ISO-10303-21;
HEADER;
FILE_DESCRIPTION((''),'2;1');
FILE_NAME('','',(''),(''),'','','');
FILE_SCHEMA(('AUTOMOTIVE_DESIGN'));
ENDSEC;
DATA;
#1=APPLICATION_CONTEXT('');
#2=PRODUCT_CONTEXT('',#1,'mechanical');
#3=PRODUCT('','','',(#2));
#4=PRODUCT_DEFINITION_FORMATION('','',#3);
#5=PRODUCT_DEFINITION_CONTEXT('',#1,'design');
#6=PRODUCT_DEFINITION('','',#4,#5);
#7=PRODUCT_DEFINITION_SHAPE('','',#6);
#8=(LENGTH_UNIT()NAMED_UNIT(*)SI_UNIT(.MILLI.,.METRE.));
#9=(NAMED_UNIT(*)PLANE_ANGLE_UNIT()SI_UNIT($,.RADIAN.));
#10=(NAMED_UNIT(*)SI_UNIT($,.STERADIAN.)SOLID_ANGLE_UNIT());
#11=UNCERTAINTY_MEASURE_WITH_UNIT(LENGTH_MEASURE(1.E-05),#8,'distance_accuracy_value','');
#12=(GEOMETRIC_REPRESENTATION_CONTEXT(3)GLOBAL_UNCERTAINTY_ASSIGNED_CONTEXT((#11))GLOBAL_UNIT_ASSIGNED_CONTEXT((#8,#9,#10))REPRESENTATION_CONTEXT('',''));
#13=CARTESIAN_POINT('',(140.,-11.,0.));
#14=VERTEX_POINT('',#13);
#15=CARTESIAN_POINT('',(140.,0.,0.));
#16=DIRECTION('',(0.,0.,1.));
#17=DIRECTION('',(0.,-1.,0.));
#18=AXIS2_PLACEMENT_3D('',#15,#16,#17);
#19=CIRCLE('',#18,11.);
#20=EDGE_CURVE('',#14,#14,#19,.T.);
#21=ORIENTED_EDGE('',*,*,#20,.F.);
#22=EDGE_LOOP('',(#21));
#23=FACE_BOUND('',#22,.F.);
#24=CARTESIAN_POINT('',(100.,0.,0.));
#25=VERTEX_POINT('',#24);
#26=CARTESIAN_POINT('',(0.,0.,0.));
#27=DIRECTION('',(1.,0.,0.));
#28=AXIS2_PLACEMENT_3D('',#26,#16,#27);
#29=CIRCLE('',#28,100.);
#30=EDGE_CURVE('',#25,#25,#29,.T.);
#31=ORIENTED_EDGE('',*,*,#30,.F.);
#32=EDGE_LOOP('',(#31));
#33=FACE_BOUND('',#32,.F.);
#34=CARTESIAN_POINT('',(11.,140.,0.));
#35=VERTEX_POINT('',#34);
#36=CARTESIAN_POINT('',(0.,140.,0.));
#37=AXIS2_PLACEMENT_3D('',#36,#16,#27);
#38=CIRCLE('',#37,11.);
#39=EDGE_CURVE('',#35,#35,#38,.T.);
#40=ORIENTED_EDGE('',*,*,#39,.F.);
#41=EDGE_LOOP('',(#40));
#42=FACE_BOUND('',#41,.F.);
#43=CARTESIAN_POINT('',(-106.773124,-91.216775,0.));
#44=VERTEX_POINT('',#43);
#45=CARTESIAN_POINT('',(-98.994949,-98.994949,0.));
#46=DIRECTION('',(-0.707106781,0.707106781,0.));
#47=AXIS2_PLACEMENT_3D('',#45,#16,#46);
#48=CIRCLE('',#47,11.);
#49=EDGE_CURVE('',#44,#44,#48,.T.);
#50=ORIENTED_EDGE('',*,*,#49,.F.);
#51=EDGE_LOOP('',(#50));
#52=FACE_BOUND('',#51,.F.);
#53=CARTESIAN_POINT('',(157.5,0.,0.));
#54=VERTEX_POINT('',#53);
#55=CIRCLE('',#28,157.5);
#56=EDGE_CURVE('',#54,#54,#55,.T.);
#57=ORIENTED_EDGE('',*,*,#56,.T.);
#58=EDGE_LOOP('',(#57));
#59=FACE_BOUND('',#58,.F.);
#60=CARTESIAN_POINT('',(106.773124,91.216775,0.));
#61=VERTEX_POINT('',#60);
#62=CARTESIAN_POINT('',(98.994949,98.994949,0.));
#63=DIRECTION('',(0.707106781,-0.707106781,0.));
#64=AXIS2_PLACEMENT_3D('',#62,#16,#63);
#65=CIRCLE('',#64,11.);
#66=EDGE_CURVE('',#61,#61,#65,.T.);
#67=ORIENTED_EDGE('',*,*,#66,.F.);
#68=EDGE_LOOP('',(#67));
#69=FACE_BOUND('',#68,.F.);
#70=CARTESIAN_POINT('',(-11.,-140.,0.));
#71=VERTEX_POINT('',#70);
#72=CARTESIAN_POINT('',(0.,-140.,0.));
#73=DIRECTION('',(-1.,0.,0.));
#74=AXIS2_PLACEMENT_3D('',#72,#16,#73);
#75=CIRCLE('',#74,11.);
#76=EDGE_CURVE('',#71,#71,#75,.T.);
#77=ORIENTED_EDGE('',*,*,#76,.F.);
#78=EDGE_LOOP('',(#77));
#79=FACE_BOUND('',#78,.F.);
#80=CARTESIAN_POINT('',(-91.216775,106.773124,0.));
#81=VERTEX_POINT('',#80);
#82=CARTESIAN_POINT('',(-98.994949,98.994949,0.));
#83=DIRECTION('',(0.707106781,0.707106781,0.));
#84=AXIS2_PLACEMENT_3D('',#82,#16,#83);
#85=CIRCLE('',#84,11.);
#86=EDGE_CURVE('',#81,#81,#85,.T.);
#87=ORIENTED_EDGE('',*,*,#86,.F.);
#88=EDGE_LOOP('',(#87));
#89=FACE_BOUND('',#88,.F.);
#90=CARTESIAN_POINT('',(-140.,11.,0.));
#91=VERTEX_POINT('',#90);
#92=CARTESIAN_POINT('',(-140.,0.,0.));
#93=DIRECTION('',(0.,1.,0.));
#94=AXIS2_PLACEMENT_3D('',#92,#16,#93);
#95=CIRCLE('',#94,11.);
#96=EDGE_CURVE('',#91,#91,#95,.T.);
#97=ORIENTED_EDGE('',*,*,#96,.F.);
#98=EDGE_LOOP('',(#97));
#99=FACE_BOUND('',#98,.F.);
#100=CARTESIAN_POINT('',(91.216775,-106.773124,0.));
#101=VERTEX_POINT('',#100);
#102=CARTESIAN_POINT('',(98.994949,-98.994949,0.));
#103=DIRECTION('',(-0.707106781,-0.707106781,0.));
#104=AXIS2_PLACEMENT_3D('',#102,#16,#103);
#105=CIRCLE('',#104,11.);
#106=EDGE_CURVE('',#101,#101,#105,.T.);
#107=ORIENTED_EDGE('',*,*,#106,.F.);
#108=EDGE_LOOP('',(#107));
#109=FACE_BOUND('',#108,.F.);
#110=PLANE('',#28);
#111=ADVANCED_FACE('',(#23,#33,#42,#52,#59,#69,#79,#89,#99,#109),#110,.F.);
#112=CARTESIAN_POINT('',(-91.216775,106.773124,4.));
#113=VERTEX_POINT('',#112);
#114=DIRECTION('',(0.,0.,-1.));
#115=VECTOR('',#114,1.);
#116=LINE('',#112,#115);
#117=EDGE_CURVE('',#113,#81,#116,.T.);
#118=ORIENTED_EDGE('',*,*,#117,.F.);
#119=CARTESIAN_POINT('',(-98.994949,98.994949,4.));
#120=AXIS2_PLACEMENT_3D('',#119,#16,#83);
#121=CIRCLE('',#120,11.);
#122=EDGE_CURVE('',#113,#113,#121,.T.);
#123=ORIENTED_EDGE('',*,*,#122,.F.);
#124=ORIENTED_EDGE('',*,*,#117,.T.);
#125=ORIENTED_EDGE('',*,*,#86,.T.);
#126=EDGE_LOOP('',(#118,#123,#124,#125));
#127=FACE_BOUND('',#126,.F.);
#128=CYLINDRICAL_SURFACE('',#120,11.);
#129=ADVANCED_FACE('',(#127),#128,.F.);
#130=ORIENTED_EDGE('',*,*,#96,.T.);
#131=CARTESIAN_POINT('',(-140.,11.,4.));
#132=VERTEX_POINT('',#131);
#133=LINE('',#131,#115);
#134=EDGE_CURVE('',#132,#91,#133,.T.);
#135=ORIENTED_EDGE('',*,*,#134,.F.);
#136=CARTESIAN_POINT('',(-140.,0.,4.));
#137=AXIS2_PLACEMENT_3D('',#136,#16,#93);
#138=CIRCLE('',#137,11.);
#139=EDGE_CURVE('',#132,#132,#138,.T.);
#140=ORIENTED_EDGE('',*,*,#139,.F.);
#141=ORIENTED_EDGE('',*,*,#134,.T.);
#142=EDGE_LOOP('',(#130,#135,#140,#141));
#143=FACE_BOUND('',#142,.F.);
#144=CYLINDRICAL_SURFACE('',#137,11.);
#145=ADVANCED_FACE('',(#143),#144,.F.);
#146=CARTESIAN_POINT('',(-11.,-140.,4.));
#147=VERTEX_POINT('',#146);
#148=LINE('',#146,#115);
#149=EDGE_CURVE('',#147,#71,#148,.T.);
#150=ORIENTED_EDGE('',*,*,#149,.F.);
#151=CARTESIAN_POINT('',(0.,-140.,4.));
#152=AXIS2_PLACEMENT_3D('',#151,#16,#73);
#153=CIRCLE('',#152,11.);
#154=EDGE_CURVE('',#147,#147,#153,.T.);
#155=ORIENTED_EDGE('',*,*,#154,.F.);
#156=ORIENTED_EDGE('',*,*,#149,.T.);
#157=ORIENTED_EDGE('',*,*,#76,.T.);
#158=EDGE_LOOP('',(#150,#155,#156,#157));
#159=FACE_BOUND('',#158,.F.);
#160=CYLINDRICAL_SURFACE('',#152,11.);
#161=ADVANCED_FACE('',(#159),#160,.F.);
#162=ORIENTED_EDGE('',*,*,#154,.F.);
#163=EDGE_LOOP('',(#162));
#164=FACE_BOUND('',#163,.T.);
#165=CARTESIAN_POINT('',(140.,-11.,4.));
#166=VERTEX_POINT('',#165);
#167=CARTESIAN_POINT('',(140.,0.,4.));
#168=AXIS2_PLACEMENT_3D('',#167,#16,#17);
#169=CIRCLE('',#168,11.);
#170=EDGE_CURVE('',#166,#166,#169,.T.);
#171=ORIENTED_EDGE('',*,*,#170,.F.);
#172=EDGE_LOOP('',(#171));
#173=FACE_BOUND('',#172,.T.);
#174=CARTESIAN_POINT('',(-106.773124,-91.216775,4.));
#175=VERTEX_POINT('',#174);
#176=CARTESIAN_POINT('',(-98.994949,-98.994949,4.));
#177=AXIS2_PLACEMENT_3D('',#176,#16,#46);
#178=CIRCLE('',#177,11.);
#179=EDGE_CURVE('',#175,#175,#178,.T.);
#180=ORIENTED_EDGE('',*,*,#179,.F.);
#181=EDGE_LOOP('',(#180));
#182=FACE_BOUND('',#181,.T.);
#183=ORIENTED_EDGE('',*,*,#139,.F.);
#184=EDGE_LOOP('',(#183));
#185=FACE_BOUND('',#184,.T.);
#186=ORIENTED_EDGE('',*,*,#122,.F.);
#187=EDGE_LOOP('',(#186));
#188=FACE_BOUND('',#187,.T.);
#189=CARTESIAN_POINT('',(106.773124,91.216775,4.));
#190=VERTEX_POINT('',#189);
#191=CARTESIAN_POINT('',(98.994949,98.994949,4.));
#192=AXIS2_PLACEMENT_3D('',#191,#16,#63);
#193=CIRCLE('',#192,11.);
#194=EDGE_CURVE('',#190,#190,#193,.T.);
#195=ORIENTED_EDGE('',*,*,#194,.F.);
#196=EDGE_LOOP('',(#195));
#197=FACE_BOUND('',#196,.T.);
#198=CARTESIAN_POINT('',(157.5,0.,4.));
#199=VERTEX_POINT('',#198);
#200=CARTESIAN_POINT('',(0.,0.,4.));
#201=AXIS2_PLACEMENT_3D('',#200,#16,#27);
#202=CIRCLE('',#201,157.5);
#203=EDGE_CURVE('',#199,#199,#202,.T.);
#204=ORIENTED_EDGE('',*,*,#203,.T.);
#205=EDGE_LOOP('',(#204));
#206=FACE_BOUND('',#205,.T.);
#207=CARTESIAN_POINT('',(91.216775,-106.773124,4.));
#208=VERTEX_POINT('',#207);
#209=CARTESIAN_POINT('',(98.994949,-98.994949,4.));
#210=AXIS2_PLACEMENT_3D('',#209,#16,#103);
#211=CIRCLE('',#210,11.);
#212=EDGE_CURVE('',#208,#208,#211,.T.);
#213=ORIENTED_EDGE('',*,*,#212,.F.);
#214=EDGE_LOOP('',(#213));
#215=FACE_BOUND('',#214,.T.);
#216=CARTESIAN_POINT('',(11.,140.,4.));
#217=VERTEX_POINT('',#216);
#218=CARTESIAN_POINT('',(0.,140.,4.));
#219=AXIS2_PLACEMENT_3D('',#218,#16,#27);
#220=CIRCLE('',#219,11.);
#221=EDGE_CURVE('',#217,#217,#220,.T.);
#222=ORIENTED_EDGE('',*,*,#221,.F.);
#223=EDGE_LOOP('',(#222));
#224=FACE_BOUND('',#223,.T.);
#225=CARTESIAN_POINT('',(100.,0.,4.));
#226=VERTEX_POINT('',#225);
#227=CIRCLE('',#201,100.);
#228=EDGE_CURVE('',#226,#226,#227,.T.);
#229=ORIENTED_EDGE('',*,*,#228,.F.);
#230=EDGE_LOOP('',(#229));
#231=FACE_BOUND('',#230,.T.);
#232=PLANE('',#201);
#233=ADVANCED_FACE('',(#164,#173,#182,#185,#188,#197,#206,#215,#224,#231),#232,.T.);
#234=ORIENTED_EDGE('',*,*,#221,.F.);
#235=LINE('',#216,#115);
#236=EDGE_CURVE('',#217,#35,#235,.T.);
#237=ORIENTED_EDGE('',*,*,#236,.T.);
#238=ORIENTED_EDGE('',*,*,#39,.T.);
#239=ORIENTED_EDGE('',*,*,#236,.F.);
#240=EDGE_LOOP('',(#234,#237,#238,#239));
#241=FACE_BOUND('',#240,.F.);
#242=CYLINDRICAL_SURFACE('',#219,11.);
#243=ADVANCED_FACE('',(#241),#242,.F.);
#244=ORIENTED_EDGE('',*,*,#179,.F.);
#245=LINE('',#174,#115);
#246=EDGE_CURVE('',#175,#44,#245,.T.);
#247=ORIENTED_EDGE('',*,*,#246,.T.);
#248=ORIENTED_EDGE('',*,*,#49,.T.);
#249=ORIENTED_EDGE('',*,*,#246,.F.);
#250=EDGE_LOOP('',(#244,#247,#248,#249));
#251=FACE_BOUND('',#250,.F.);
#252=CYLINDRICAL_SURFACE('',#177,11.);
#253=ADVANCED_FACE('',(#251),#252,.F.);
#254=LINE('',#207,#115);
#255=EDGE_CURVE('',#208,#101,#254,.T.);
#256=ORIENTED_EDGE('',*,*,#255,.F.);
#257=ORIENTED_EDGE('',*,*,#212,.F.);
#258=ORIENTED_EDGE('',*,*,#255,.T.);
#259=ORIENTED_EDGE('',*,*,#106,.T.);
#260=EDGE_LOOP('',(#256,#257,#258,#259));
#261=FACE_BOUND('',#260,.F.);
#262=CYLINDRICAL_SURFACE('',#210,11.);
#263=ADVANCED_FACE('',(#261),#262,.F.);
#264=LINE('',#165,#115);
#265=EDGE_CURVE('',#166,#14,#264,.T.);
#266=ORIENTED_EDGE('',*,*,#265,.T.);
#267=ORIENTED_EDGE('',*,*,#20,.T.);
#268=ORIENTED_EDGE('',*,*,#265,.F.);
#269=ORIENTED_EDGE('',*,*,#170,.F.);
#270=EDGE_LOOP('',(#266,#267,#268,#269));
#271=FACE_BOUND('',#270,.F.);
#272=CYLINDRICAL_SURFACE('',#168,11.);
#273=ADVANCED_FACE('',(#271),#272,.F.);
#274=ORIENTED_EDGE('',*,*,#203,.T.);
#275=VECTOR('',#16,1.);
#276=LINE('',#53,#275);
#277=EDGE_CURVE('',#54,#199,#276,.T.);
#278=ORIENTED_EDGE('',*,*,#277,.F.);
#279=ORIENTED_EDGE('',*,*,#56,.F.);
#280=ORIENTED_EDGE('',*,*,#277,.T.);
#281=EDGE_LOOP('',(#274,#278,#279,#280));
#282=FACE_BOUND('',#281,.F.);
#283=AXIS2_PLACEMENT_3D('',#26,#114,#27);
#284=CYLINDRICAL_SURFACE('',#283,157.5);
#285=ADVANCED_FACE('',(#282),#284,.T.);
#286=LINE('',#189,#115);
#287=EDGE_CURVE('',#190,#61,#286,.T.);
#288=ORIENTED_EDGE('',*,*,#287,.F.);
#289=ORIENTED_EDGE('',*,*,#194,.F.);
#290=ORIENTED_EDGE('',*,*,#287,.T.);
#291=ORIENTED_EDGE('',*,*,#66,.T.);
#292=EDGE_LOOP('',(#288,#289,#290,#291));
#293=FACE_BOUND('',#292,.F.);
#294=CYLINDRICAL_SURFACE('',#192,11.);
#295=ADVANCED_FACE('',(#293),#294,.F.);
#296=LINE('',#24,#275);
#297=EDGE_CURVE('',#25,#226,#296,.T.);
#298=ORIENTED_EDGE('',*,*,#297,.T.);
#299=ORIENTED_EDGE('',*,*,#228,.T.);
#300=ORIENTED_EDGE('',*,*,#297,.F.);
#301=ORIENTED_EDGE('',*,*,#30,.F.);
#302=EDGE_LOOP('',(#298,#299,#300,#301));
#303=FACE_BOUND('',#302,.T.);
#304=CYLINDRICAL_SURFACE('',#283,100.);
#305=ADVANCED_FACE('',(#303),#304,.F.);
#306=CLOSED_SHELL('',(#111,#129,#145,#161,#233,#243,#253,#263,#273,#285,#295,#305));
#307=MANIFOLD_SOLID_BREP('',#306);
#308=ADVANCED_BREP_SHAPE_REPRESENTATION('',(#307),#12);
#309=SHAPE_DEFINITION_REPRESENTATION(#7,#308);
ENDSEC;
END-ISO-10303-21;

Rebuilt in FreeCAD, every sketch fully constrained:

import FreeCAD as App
import Part
import Sketcher

V = App.Vector

doc = App.newDocument("Part")
body = doc.addObject("PartDesign::Body", "Body")

sketch1 = body.newObject("Sketcher::SketchObject", "Sketch")
sketch1.AttachmentSupport = (doc.getObject("XY_Plane"), [""])
sketch1.MapMode = "FlatFace"
sketch1.addGeometry(Part.Circle(V(0, 0, 0), V(0, 0, 1), 158), False)
sketch1.addGeometry(Part.Circle(V(0, 0, 0), V(0, 0, 1), 100), False)
sketch1.addConstraint(Sketcher.Constraint("Coincident", 0, 3, -1, 1))
sketch1.addConstraint(Sketcher.Constraint("Coincident", 1, 3, -1, 1))
sketch1.addConstraint(Sketcher.Constraint("Diameter", 0, 315.0))
sketch1.addConstraint(Sketcher.Constraint("Diameter", 1, 200.0))
pad1 = body.newObject("PartDesign::Pad", "Pad")
pad1.Profile = sketch1
pad1.Length = 4

sketch2 = body.newObject("Sketcher::SketchObject", "Sketch001")
sketch2.AttachmentSupport = (doc.getObject("XY_Plane"), [""])
sketch2.MapMode = "FlatFace"
sketch2.AttachmentOffset = App.Placement(V(0, 0, 4), App.Rotation())
sketch2.addGeometry(Part.Circle(V(0, 140, 0), V(0, 0, 1), 11), False)
sketch2.addConstraint(Sketcher.Constraint("PointOnObject", 0, 3, -2))
sketch2.addConstraint(Sketcher.Constraint("Diameter", 0, 22.0))
sketch2.addConstraint(Sketcher.Constraint("DistanceY", -1, 1, 0, 3, 140.0))
pocket1 = body.newObject("PartDesign::Pocket", "Pocket")
pocket1.Profile = sketch2
pocket1.Length = 4
doc.recompute()

polarpattern = body.newObject("PartDesign::PolarPattern", "PolarPattern")
polarpattern.Originals = [pocket1]
polarpattern.Axis = (doc.getObject("Z_Axis"), [""])
polarpattern.Angle = 360
polarpattern.Occurrences = 8
body.Tip = polarpattern

doc.recompute()
